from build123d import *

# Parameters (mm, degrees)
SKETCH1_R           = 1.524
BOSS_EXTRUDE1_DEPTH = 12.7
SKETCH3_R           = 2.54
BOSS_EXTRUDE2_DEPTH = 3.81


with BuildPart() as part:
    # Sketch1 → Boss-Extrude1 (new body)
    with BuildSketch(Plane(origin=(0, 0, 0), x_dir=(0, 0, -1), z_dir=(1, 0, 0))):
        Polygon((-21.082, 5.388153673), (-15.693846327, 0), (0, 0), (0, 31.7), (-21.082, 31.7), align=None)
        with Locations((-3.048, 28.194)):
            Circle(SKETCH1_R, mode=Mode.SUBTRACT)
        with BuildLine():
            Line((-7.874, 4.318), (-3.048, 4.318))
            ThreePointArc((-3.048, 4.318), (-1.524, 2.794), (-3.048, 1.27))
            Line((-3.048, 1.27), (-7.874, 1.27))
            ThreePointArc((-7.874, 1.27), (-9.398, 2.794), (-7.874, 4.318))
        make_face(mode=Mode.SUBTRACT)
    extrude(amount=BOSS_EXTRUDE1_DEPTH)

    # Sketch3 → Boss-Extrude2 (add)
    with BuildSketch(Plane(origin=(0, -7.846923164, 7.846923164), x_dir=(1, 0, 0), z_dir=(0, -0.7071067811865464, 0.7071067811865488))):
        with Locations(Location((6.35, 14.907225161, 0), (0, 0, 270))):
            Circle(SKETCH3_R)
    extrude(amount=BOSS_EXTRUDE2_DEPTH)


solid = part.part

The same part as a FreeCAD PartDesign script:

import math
import FreeCAD as App
import Part
import Sketcher

V = App.Vector
Q = App.Units.Quantity


def add_polygon(sketch, points):
    """Adds a closed chain of lines whose ends are joined by coincident constraints."""
    first, n = sketch.GeometryCount, len(points)
    for a, b in zip(points, points[1:] + points[:1]):
        sketch.addGeometry(Part.LineSegment(App.Vector(*a, 0), App.Vector(*b, 0)), False)
    for i in range(n):
        sketch.addConstraint(Sketcher.Constraint("Coincident", first + i, 2, first + (i + 1) % n, 1))

doc = App.newDocument("Part")
body = doc.addObject("PartDesign::Body", "Body")

# Sketch on YZ plane
sketch1 = doc.addObject("Sketcher::SketchObject", "Sketch")
body.addObject(sketch1)
sketch1.AttachmentSupport = (doc.YZ_Plane, [""])
sketch1.MapMode = "FlatFace"
add_polygon(sketch1, [(5.4, 21.1), (0, 15.7), (0, 0), (31.7, 0), (31.7, 21.1)])  # lines 0-4
sketch1.addGeometry(Part.ArcOfCircle(Part.Circle(V(2.8, 7.9, 0), V(0, 0, 1), 1.5), math.radians(0), math.radians(180)), False)  # 5
sketch1.addGeometry(Part.LineSegment(V(4.3, 7.9, 0), V(4.3, 3, 0)), False)  # 6
sketch1.addGeometry(Part.ArcOfCircle(Part.Circle(V(2.8, 3, 0), V(0, 0, 1), 1.5), math.radians(180), math.radians(360)), False)  # 7
sketch1.addGeometry(Part.LineSegment(V(1.3, 3, 0), V(1.3, 7.9, 0)), False)  # 8
sketch1.addGeometry(Part.Circle(V(28.2, 3, 0), V(0, 0, 1), 1.5), False)  # 9
sketch1.addConstraint(Sketcher.Constraint("Tangent", 5, 1, 6, 1))
sketch1.addConstraint(Sketcher.Constraint("Tangent", 6, 2, 7, 2))
sketch1.addConstraint(Sketcher.Constraint("Tangent", 7, 1, 8, 1))
sketch1.addConstraint(Sketcher.Constraint("Tangent", 8, 2, 5, 2))
sketch1.addConstraint(Sketcher.Constraint("Vertical", 1))
sketch1.addConstraint(Sketcher.Constraint("Horizontal", 2))
sketch1.addConstraint(Sketcher.Constraint("Vertical", 3))
sketch1.addConstraint(Sketcher.Constraint("Horizontal", 4))
sketch1.addConstraint(Sketcher.Constraint("Vertical", 6))
sketch1.addConstraint(Sketcher.Constraint("Vertical", 8))
sketch1.addConstraint(Sketcher.Constraint("Coincident", 1, 2, -1, 1))
sketch1.addConstraint(Sketcher.Constraint("Equal", 7, 9))
sketch1.addConstraint(Sketcher.Constraint("Horizontal", 7, 3, 9, 3))
sketch1.addConstraint(Sketcher.Constraint("Diameter", 9, Q("0.12 in")))
sketch1.addConstraint(Sketcher.Constraint("Angle", 0, Q("-135 deg")))
sketch1.addConstraint(Sketcher.Constraint("DistanceX", 7, 3, 9, 3, Q("1 in")))
sketch1.addConstraint(Sketcher.Constraint("Distance", 0, Q("0.3 in")))
sketch1.addConstraint(Sketcher.Constraint("DistanceY", 3, 1, 3, 2, Q("0.83 in")))
sketch1.addConstraint(Sketcher.Constraint("DistanceY", 6, 2, 6, 1, Q("0.19 in")))
sketch1.addConstraint(Sketcher.Constraint("DistanceX", -1, 1, 5, 3, Q("0.11 in")))
sketch1.addConstraint(Sketcher.Constraint("DistanceY", -1, 1, 5, 3, Q("0.31 in")))
sketch1.addConstraint(Sketcher.Constraint("DistanceX", 2, 1, 2, 2, 31.7))
pad1 = doc.addObject("PartDesign::Pad", "Pad")
body.addObject(pad1)
pad1.Profile = sketch1
pad1.Length = Q("0.5 in")

# Sketch on an angled plane
sketch2 = doc.addObject("Sketcher::SketchObject", "Sketch001")
body.addObject(sketch2)
sketch2.Placement = App.Placement(V(0, -7.846923, 7.846923), App.Rotation(V(1, 0, 0), V(0, 0.707106781, 0.707106781), V(0, -0.707106781, 0.707106781), "ZXY"))
sketch2.addGeometry(Part.Circle(V(6.3, 14.9, 0), V(0, 0, 1), 2.5), False)
sketch2.addConstraint(Sketcher.Constraint("Diameter", 0, Q("0.2 in")))
sketch2.addConstraint(Sketcher.Constraint("DistanceX", -1, 1, 0, 3, Q("0.25 in")))
sketch2.addConstraint(Sketcher.Constraint("DistanceY", -1, 1, 0, 3, 14.907225))
pad2 = doc.addObject("PartDesign::Pad", "Pad001")
body.addObject(pad2)
pad2.Profile = sketch2
pad2.Length = Q("0.15 in")

doc.recompute()
